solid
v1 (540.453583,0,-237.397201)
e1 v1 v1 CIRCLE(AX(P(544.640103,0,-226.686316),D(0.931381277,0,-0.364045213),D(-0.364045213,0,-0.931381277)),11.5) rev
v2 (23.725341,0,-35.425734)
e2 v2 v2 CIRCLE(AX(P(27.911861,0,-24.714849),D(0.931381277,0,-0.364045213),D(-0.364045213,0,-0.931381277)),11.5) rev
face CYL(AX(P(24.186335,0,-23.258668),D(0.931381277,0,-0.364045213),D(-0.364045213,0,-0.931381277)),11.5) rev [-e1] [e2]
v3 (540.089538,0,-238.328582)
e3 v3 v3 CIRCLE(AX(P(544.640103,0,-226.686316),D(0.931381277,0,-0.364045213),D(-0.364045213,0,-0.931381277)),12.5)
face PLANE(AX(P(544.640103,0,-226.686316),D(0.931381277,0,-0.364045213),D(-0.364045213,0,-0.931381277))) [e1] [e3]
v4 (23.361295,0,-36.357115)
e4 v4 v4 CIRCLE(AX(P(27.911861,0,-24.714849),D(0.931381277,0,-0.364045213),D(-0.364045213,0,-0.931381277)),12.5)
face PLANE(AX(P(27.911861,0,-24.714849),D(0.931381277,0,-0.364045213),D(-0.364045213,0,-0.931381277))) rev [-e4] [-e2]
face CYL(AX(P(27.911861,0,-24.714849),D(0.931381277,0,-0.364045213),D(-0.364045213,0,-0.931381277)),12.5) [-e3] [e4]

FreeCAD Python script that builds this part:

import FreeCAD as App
import Part
import Sketcher
from FreeCAD import Vector
Q = App.Units.Quantity

doc = App.newDocument("Part")
body = doc.addObject("PartDesign::Body", "Body")

# Sketch on an angled plane
sketch1 = body.newObject("Sketcher::SketchObject", "Sketch")
sketch1.Placement = App.Placement(Vector(27.911861, 0, -24.714849), App.Rotation(Vector(0.364045213, 0, 0.931381277), Vector(0, -1, 0), Vector(0.931381277, 0, -0.364045213), "ZXY"))
sketch1.addGeometry(Part.Circle(Vector(0, 0, 0), Vector(0, 0, 1), 12), False)
sketch1.addConstraint([
    Sketcher.Constraint("Coincident", 0, 3, -1, 1),
    Sketcher.Constraint("Diameter", 0, Q("25 mm")),
])

# Sketch on an angled plane
sketch2 = body.newObject("Sketcher::SketchObject", "Sketch001")
sketch2.Placement = App.Placement(Vector(-4.680809, 0, -11.975485), App.Rotation(Vector(0.931381277, 0, -0.364045213), Vector(0, 1, 0), Vector(0.364045213, 0, 0.931381277), "ZXY"))
sketch2.addGeometry(Part.LineSegment(Vector(35, 0, 0), Vector(590, 0, 0)), False)
sketch2.addConstraint([
    Sketcher.Constraint("Horizontal", 0),
    Sketcher.Constraint("PointOnObject", 0, 1, -1),
    Sketcher.Constraint("DistanceX", 0, 1, 0, 2, Q("554.797756 mm")),
    Sketcher.Constraint("DistanceX", -1, 1, 0, 1, Q("34.993907 mm")),
])
doc.recompute()

additivepipe = body.newObject("PartDesign::AdditivePipe", "AdditivePipe")
additivepipe.Profile = sketch1
additivepipe.Spine = (sketch2, ["Edge1"])

# Sketch on an angled plane
sketch3 = body.newObject("Sketcher::SketchObject", "Sketch002")
sketch3.Placement = App.Placement(Vector(27.911861, 0, -24.714849), App.Rotation(Vector(0.364045213, 0, 0.931381277), Vector(0, -1, 0), Vector(0.931381277, 0, -0.364045213), "ZXY"))
sketch3.addGeometry(Part.Circle(Vector(0, 0, 0), Vector(0, 0, 1), 12), False)
sketch3.addConstraint([
    Sketcher.Constraint("Coincident", 0, 3, -1, 1),
    Sketcher.Constraint("Diameter", 0, Q("23 mm")),
])

# Sketch on an angled plane
sketch4 = body.newObject("Sketcher::SketchObject", "Sketch003")
sketch4.Placement = App.Placement(Vector(-4.680809, 0, -11.975485), App.Rotation(Vector(0.931381277, 0, -0.364045213), Vector(0, 1, 0), Vector(0.364045213, 0, 0.931381277), "ZXY"))
sketch4.addGeometry(Part.LineSegment(Vector(35, 0, 0), Vector(590, 0, 0)), False)
sketch4.addConstraint([
    Sketcher.Constraint("Horizontal", 0),
    Sketcher.Constraint("PointOnObject", 0, 1, -1),
    Sketcher.Constraint("DistanceX", 0, 1, 0, 2, Q("554.797756 mm")),
    Sketcher.Constraint("DistanceX", -1, 1, 0, 1, Q("34.993907 mm")),
])
doc.recompute()

subtractivepipe = body.newObject("PartDesign::SubtractivePipe", "SubtractivePipe")
subtractivepipe.Profile = sketch3
subtractivepipe.Spine = (sketch4, ["Edge1"])

doc.recompute()
